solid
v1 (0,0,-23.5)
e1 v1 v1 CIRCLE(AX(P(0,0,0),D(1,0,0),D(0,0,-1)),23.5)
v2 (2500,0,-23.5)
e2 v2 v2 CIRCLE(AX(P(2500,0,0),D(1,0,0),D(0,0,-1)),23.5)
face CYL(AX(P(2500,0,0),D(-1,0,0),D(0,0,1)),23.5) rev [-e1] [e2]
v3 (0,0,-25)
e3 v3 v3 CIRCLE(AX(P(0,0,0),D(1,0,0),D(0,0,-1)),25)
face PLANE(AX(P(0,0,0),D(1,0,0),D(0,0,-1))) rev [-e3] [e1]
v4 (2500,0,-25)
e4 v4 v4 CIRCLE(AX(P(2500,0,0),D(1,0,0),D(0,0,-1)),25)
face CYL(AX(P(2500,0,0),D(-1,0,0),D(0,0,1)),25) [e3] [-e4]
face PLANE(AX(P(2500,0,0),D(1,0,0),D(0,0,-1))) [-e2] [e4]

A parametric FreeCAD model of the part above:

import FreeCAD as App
import Part
import Sketcher
Q = App.Units.Quantity

doc = App.newDocument("Part")
body = doc.addObject("PartDesign::Body", "Body")

# Sketch on YZ plane
sketch1 = body.newObject("Sketcher::SketchObject", "Sketch")
sketch1.AttachmentSupport = (doc.getObject("YZ_Plane"), [""])
sketch1.MapMode = "FlatFace"
sketch1.addGeometry([
    Part.Circle(App.Vector(0, 0, 0), App.Vector(0, 0, 1), 25),
    Part.Circle(App.Vector(0, 0, 0), App.Vector(0, 0, 1), 23.5),
], False)
sketch1.addConstraint([
    Sketcher.Constraint("Coincident", 0, 3, -1, 1),
    Sketcher.Constraint("Coincident", 1, 3, -1, 1),
    Sketcher.Constraint("Diameter", 0, Q("50 mm")),
    Sketcher.Constraint("Diameter", 1, Q("47 mm")),
])
pad1 = body.newObject("PartDesign::Pad", "Pad")
pad1.Profile = sketch1
pad1.Length = 2500

doc.recompute()
